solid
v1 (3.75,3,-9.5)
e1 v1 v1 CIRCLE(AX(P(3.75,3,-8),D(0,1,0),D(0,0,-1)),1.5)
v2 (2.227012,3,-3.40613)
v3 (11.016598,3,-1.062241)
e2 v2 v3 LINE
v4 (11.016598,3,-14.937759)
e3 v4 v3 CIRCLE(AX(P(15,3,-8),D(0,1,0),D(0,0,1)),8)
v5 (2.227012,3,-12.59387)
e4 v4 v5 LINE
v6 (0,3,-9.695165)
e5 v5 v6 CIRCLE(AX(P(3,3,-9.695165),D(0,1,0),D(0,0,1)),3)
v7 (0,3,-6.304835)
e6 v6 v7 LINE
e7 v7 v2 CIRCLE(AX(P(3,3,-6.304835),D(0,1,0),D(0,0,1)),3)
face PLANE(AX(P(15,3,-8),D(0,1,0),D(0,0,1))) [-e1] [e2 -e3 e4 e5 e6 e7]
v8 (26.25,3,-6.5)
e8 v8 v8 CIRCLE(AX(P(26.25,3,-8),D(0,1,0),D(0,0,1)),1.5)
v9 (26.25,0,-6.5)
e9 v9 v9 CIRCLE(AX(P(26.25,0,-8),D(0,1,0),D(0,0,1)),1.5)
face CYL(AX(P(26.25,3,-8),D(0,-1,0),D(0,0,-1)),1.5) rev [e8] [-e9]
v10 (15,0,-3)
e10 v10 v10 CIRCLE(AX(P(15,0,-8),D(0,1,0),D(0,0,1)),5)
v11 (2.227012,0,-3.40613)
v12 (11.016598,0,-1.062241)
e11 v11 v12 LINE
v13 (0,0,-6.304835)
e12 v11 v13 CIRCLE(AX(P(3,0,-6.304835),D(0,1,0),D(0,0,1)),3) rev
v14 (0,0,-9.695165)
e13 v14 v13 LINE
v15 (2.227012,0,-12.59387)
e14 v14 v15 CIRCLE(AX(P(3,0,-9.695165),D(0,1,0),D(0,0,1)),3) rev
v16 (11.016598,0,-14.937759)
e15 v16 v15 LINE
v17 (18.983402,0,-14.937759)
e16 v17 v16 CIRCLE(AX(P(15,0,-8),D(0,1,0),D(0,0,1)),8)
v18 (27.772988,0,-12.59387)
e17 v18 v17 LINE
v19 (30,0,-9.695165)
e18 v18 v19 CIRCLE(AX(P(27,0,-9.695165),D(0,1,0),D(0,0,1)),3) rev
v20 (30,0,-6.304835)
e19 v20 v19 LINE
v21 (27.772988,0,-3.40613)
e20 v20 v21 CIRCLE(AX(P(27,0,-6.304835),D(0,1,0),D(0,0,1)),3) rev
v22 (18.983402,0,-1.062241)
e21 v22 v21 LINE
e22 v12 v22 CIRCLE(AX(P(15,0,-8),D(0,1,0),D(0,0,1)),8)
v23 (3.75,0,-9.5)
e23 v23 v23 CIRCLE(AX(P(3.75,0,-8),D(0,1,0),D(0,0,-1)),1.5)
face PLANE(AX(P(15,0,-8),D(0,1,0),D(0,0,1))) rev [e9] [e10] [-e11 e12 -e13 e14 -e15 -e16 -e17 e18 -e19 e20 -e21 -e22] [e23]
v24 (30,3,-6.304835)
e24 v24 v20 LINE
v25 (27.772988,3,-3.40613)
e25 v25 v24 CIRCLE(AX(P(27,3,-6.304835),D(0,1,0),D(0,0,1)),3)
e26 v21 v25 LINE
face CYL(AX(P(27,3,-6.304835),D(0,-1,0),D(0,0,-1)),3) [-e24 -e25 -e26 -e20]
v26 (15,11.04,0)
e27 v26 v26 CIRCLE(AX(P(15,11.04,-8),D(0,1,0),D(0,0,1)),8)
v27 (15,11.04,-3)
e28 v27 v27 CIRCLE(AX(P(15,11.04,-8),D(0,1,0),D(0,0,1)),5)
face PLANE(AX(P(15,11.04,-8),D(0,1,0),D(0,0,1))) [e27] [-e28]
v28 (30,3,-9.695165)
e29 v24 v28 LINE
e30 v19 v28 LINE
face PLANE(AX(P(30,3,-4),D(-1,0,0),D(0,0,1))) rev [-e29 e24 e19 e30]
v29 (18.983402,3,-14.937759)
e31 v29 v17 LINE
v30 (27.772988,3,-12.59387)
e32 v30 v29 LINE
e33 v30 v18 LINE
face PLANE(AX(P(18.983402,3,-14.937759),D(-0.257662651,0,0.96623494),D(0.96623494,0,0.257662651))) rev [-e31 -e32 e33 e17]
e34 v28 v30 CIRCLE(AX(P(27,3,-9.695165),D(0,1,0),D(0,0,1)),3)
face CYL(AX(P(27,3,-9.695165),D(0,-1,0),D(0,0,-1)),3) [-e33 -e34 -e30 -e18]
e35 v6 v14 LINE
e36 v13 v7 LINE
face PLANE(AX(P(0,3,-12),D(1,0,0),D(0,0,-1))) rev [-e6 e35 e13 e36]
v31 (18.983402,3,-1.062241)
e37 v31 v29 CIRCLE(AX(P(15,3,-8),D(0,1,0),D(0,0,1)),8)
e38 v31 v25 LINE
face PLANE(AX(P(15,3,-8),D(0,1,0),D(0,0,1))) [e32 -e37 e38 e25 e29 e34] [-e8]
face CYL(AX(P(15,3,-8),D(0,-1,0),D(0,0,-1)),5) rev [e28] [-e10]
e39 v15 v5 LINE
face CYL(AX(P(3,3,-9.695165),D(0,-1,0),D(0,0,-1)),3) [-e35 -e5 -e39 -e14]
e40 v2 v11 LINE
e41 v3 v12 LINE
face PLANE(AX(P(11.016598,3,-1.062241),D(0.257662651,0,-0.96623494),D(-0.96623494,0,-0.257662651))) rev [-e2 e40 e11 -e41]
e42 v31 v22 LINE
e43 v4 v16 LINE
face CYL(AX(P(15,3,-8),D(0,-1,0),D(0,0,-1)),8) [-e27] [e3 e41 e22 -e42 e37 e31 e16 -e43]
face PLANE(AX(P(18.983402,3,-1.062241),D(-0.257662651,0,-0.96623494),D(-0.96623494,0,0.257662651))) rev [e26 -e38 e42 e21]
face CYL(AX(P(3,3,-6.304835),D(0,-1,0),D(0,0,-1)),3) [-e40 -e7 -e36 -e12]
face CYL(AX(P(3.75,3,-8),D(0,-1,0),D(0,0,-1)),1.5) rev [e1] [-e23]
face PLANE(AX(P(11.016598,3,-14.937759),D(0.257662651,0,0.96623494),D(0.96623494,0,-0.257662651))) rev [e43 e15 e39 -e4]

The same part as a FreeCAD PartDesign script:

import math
import FreeCAD as App
import Part
import Sketcher

V = App.Vector


def edges_at(feature, points):
    """Names of the edges that pass closest to the given points."""
    edges = feature.Shape.Edges
    near = lambda p: min(range(len(edges)), key=lambda i: edges[i].distToShape(Part.Vertex(*p))[0])
    return sorted({f"Edge{near(p) + 1}" for p in points})

doc = App.newDocument("Part")
params = doc.addObject("Spreadsheet::Sheet", "Params")
for row, (alias, value) in enumerate([
    ("sketch1_diameter", "3 mm"),
    ("sketch1_diameter2", "10 mm"),
    ("sketch1_radius", "8 mm"),
    ("sketch1_height", "8 mm"),
    ("pad1_length", "3 mm"),
    ("fillet_radius", "3 mm"),
    ("sketch2_diameter", "16 mm"),
    ("sketch2_diameter2", "10 mm"),
    ("pad2_length", "8.04 mm"),
], start=1):
    params.set(f"A{row}", alias)
    params.set(f"B{row}", "=" + value)
    params.setAlias(f"B{row}", alias)

body = doc.addObject("PartDesign::Body", "Body")

sketch1 = body.newObject("Sketcher::SketchObject", "Sketch")
sketch1.AttachmentSupport = (doc.getObject("XZ_Plane"), [""])
sketch1.MapMode = "FlatFace"
sketch1.addGeometry(Part.LineSegment(V(30, -4, 0), V(30, -12, 0)), False)
sketch1.addGeometry(Part.LineSegment(V(30, -12, 0), V(18.983402, -14.937759, 0)), False)
sketch1.addGeometry(Part.ArcOfCircle(Part.Circle(V(15, -8, 0), V(0, 0, 1), 8), math.radians(-119.862834), math.radians(-60.137166)), False)
sketch1.addGeometry(Part.LineSegment(V(11.016598, -14.937759, 0), V(0, -12, 0)), False)
sketch1.addGeometry(Part.LineSegment(V(0, -12, 0), V(0, -4, 0)), False)
sketch1.addGeometry(Part.LineSegment(V(0, -4, 0), V(11.016598, -1.062241, 0)), False)
sketch1.addGeometry(Part.ArcOfCircle(Part.Circle(V(15, -8, 0), V(0, 0, 1), 8), math.radians(60.137166), math.radians(119.862834)), False)
sketch1.addGeometry(Part.LineSegment(V(18.983402, -1.062241, 0), V(30, -4, 0)), False)
sketch1.addGeometry(Part.Circle(V(3.75, -8, 0), V(0, 0, 1), 1.5), False)
sketch1.addGeometry(Part.Circle(V(15, -8, 0), V(0, 0, 1), 5), False)
sketch1.addGeometry(Part.Circle(V(26.25, -8, 0), V(0, 0, 1), 1.5), False)
sketch1.addConstraint(Sketcher.Constraint("Coincident", 0, 2, 1, 1))
sketch1.addConstraint(Sketcher.Constraint("Coincident", 1, 2, 2, 2))
sketch1.addConstraint(Sketcher.Constraint("Coincident", 2, 1, 3, 1))
sketch1.addConstraint(Sketcher.Constraint("Coincident", 3, 2, 4, 1))
sketch1.addConstraint(Sketcher.Constraint("Coincident", 4, 2, 5, 1))
sketch1.addConstraint(Sketcher.Constraint("Coincident", 5, 2, 6, 2))
sketch1.addConstraint(Sketcher.Constraint("Coincident", 6, 1, 7, 1))
sketch1.addConstraint(Sketcher.Constraint("Coincident", 7, 2, 0, 1))
sketch1.addConstraint(Sketcher.Constraint("Vertical", 0))
sketch1.addConstraint(Sketcher.Constraint("Vertical", 4))
sketch1.addConstraint(Sketcher.Constraint("Coincident", 6, 3, 2, 3))
sketch1.addConstraint(Sketcher.Constraint("Coincident", 9, 3, 2, 3))
sketch1.addConstraint(Sketcher.Constraint("Equal", 2, 6))
sketch1.addConstraint(Sketcher.Constraint("Equal", 8, 10))
sketch1.addConstraint(Sketcher.Constraint("PointOnObject", 3, 2, -2))
sketch1.addConstraint(Sketcher.Constraint("Parallel", 1, 5))
sketch1.addConstraint(Sketcher.Constraint("Parallel", 3, 7))
sketch1.addConstraint(Sketcher.Constraint("Horizontal", 6, 3, 8, 3))
sketch1.addConstraint(Sketcher.Constraint("Horizontal", 9, 3, 10, 3))
sketch1.addConstraint(Sketcher.Constraint("Horizontal", 1, 2, 2, 1))
sketch1.addConstraint(Sketcher.Constraint("Horizontal", 0, 2, 3, 2))
sketch1.addConstraint(Sketcher.Constraint("Horizontal", 5, 2, 6, 1))
sketch1.addConstraint(Sketcher.Constraint("Horizontal", 4, 2, 7, 2))
sketch1.addConstraint(Sketcher.Constraint("Vertical", 2, 1, 5, 2))
sketch1.addConstraint(Sketcher.Constraint("Diameter", 8, 3.0))
sketch1.addConstraint(Sketcher.Constraint("Diameter", 9, 10.0))
sketch1.addConstraint(Sketcher.Constraint("Radius", 2, 8.0))
sketch1.addConstraint(Sketcher.Constraint("DistanceY", 0, 2, 0, 1, 8.0))
sketch1.addConstraint(Sketcher.Constraint("DistanceX", -1, 1, 2, 3, 15.0))
sketch1.addConstraint(Sketcher.Constraint("DistanceY", 2, 3, -1, 1, 8.0))
sketch1.addConstraint(Sketcher.Constraint("DistanceX", 8, 3, 10, 3, 22.5))
sketch1.addConstraint(Sketcher.Constraint("DistanceX", -1, 1, 8, 3, 3.75))
sketch1.addConstraint(Sketcher.Constraint("DistanceY", 1, 2, -1, 1, 14.937759))
sketch1.setExpression("Constraints[24]", "Params.sketch1_diameter")
sketch1.setExpression("Constraints[25]", "Params.sketch1_diameter2")
sketch1.setExpression("Constraints[26]", "Params.sketch1_radius")
sketch1.setExpression("Constraints[27]", "Params.sketch1_height")
pad1 = body.newObject("PartDesign::Pad", "Pad")
pad1.Profile = sketch1
pad1.setExpression("Length", "Params.pad1_length")
pad1.Reversed = True
doc.recompute()

fillet = body.newObject("PartDesign::Fillet", "Fillet")
fillet.Base = (pad1, edges_at(pad1, [
    (0, 1.5, -4),
    (0, 1.5, -12),
    (30, 1.5, -12),
    (30, 1.5, -4),
]))
fillet.setExpression("Radius", "Params.fillet_radius")

sketch2 = body.newObject("Sketcher::SketchObject", "Sketch001")
sketch2.AttachmentSupport = (doc.getObject("XZ_Plane"), [""])
sketch2.MapMode = "FlatFace"
sketch2.AttachmentOffset = App.Placement(V(0, 0, -3), App.Rotation())
sketch2.addGeometry(Part.Circle(V(15, -8, 0), V(0, 0, 1), 8), False)
sketch2.addGeometry(Part.Circle(V(15, -8, 0), V(0, 0, 1), 5), False)
sketch2.addConstraint(Sketcher.Constraint("Coincident", 1, 3, 0, 3))
sketch2.addConstraint(Sketcher.Constraint("Diameter", 0, 16.0))
sketch2.addConstraint(Sketcher.Constraint("Diameter", 1, 10.0))
sketch2.addConstraint(Sketcher.Constraint("DistanceX", -1, 1, 0, 3, 15.0))
sketch2.addConstraint(Sketcher.Constraint("DistanceY", 0, 3, -1, 1, 8.0))
sketch2.setExpression("Constraints[1]", "Params.sketch2_diameter")
sketch2.setExpression("Constraints[2]", "Params.sketch2_diameter2")
pad2 = body.newObject("PartDesign::Pad", "Pad001")
pad2.Profile = sketch2
pad2.setExpression("Length", "Params.pad2_length")
pad2.Reversed = True

doc.recompute()
